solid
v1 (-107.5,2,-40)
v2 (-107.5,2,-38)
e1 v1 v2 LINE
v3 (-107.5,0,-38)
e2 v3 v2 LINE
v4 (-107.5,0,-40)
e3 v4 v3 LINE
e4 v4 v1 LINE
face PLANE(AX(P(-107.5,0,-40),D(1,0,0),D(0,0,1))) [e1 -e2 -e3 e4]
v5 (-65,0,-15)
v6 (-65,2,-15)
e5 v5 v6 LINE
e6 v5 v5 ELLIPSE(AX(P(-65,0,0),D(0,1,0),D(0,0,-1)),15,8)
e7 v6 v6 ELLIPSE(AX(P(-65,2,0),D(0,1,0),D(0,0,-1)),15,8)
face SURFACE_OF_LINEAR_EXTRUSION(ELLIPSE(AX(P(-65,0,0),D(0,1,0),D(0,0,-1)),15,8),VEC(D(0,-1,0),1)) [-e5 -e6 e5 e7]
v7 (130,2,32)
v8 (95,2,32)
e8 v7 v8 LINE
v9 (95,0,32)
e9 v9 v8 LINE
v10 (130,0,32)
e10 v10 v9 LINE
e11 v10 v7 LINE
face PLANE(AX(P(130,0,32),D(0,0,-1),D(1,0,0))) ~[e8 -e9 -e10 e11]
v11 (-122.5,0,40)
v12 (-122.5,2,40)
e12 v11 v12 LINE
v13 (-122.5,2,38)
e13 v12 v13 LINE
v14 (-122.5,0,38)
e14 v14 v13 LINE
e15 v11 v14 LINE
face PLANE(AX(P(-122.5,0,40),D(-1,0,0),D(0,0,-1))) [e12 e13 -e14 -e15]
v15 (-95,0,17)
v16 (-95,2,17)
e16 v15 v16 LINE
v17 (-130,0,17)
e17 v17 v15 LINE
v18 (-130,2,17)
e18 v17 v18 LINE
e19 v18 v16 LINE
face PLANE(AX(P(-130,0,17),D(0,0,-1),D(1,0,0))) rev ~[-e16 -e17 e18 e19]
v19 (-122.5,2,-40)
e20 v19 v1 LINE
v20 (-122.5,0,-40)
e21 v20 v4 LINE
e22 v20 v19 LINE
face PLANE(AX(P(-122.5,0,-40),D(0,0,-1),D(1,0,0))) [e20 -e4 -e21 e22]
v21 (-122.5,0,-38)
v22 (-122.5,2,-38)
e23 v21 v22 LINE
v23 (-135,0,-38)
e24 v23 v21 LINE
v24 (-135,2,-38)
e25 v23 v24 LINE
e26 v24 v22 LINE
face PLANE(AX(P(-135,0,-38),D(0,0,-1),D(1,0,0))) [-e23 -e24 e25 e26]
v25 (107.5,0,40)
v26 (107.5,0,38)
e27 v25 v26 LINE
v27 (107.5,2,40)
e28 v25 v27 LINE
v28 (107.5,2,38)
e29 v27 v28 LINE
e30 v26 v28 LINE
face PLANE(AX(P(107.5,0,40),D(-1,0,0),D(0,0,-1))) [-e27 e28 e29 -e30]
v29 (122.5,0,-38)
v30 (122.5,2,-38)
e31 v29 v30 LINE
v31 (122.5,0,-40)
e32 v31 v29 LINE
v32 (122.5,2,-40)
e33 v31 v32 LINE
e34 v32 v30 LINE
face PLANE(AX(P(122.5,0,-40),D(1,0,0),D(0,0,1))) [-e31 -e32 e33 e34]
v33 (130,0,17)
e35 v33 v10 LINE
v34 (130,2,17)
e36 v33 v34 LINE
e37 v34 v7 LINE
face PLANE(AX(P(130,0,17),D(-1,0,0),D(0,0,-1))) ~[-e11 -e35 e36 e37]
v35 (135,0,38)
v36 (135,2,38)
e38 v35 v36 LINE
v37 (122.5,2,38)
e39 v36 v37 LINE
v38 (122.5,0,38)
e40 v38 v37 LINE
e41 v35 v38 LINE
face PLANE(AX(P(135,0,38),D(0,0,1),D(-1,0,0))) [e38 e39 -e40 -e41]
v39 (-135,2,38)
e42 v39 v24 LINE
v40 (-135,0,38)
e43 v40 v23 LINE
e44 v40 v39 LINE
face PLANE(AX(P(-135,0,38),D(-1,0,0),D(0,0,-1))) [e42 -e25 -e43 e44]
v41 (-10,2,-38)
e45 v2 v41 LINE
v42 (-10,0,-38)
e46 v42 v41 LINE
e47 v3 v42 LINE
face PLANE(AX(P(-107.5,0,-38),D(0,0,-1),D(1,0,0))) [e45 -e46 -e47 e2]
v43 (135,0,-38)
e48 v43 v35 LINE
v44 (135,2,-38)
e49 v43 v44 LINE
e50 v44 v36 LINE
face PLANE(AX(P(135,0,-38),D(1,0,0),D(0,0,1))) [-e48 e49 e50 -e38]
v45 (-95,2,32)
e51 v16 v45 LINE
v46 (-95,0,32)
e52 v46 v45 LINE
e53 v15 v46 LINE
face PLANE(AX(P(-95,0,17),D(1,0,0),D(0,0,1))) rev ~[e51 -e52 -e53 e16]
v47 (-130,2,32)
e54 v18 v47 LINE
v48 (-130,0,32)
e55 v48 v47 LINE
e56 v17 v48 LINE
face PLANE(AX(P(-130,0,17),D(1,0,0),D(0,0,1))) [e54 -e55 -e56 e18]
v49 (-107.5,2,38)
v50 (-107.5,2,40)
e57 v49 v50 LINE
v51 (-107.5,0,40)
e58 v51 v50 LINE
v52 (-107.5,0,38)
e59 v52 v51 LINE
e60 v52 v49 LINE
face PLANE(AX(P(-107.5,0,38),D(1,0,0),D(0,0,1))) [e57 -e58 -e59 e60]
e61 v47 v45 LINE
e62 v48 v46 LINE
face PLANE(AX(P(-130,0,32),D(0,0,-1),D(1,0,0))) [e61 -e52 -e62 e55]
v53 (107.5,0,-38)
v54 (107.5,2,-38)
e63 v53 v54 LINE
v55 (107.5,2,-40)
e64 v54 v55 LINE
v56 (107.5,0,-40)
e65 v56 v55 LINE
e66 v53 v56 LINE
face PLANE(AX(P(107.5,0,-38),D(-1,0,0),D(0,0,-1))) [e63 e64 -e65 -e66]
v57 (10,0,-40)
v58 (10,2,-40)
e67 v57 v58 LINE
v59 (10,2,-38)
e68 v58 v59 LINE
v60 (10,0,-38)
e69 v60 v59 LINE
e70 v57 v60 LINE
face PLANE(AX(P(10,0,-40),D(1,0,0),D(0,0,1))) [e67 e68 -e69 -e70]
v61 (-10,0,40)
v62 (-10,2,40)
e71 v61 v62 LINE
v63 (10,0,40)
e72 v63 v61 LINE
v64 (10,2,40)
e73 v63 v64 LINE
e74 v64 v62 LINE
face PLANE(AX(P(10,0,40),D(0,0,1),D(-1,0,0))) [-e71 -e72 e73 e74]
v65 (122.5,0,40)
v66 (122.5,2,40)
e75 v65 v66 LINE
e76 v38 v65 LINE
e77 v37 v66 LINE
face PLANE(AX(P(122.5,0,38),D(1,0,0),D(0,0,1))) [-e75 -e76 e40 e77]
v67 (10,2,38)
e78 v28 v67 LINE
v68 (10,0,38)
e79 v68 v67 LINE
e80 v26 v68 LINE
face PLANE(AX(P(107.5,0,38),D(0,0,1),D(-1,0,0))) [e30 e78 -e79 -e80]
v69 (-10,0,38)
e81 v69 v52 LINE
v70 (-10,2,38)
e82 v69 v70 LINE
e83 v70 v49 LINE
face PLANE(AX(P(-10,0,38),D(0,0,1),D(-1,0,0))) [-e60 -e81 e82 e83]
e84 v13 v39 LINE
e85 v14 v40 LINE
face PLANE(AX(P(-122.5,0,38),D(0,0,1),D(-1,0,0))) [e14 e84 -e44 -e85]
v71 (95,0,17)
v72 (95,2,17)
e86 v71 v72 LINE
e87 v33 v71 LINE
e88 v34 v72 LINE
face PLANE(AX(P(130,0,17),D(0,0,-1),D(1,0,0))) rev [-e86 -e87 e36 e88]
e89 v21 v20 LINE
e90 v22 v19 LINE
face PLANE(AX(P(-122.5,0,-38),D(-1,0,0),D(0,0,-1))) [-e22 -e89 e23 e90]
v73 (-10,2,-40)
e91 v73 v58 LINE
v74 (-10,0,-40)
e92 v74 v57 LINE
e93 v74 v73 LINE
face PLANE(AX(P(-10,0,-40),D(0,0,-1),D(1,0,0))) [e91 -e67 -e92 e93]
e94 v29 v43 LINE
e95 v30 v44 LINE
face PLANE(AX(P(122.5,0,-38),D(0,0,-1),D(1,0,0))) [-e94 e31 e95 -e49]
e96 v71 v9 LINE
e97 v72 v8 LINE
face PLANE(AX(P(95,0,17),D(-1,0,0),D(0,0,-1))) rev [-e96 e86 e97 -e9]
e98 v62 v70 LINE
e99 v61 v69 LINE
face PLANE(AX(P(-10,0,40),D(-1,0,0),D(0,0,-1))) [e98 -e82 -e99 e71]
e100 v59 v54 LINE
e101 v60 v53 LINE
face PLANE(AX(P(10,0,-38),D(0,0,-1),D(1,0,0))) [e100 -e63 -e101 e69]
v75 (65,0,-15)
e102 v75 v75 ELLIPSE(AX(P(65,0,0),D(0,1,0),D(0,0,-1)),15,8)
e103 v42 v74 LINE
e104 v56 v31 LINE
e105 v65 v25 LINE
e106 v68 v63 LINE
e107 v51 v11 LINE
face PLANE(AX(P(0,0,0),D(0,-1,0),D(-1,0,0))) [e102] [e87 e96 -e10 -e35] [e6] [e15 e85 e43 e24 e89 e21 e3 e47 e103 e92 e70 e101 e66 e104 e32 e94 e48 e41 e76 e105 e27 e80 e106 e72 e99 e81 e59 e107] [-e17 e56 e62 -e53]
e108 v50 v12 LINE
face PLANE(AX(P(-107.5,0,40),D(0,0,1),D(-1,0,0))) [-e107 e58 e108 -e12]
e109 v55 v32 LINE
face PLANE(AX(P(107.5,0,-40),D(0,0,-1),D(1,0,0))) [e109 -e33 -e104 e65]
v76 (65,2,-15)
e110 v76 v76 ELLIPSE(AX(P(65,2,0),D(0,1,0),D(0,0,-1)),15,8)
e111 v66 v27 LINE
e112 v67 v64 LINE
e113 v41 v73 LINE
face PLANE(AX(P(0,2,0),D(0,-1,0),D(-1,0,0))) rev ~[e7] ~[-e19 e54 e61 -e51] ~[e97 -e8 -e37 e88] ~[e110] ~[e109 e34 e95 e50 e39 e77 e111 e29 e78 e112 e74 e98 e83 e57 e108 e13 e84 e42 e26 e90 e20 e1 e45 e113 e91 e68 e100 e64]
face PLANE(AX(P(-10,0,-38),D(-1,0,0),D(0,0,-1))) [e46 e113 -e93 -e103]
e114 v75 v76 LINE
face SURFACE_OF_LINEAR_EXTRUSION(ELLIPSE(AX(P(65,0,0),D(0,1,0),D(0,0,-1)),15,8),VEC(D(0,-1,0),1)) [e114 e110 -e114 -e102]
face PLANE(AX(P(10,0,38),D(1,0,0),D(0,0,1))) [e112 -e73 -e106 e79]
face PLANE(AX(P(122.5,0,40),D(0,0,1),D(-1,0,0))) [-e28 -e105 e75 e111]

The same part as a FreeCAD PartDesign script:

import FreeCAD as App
import Part
import Sketcher
Q = App.Units.Quantity

doc = App.newDocument("Part")
body = doc.addObject("PartDesign::Body", "Body")

# Sketch on XZ plane
sketch1 = body.newObject("Sketcher::SketchObject", "Sketch")
sketch1.AttachmentSupport = (doc.getObject("XZ_Plane"), [""])
sketch1.MapMode = "FlatFace"
sketch1.addGeometry([
    Part.LineSegment(App.Vector(-10, -38, 0), App.Vector(-107.5, -38, 0)),  # 0
    Part.LineSegment(App.Vector(-107.5, -38, 0), App.Vector(-107.5, -40, 0)),  # 1
    Part.LineSegment(App.Vector(-107.5, -40, 0), App.Vector(-122.5, -40, 0)),  # 2
    Part.LineSegment(App.Vector(-122.5, -40, 0), App.Vector(-122.5, -38, 0)),  # 3
    Part.LineSegment(App.Vector(-122.5, -38, 0), App.Vector(-135, -38, 0)),  # 4
    Part.LineSegment(App.Vector(-135, -38, 0), App.Vector(-135, 38, 0)),  # 5
    Part.LineSegment(App.Vector(-135, 38, 0), App.Vector(-122.5, 38, 0)),  # 6
    Part.LineSegment(App.Vector(-122.5, 38, 0), App.Vector(-122.5, 40, 0)),  # 7
    Part.LineSegment(App.Vector(-122.5, 40, 0), App.Vector(-107.5, 40, 0)),  # 8
    Part.LineSegment(App.Vector(-107.5, 40, 0), App.Vector(-107.5, 38, 0)),  # 9
    Part.LineSegment(App.Vector(-107.5, 38, 0), App.Vector(-10, 38, 0)),  # 10
    Part.LineSegment(App.Vector(-10, 38, 0), App.Vector(-10, 40, 0)),  # 11
    Part.LineSegment(App.Vector(-10, 40, 0), App.Vector(10, 40, 0)),  # 12
    Part.LineSegment(App.Vector(10, 40, 0), App.Vector(10, 38, 0)),  # 13
    Part.LineSegment(App.Vector(10, 38, 0), App.Vector(107.5, 38, 0)),  # 14
    Part.LineSegment(App.Vector(107.5, 38, 0), App.Vector(107.5, 40, 0)),  # 15
    Part.LineSegment(App.Vector(107.5, 40, 0), App.Vector(122.5, 40, 0)),  # 16
    Part.LineSegment(App.Vector(122.5, 40, 0), App.Vector(122.5, 38, 0)),  # 17
    Part.LineSegment(App.Vector(122.5, 38, 0), App.Vector(135, 38, 0)),  # 18
    Part.LineSegment(App.Vector(135, 38, 0), App.Vector(135, -38, 0)),  # 19
    Part.LineSegment(App.Vector(135, -38, 0), App.Vector(122.5, -38, 0)),  # 20
    Part.LineSegment(App.Vector(122.5, -38, 0), App.Vector(122.5, -40, 0)),  # 21
    Part.LineSegment(App.Vector(122.5, -40, 0), App.Vector(107.5, -40, 0)),  # 22
    Part.LineSegment(App.Vector(107.5, -40, 0), App.Vector(107.5, -38, 0)),  # 23
    Part.LineSegment(App.Vector(107.5, -38, 0), App.Vector(10, -38, 0)),  # 24
    Part.LineSegment(App.Vector(10, -38, 0), App.Vector(10, -40, 0)),  # 25
    Part.LineSegment(App.Vector(10, -40, 0), App.Vector(-10, -40, 0)),  # 26
    Part.LineSegment(App.Vector(-10, -40, 0), App.Vector(-10, -38, 0)),  # 27
    Part.Ellipse(App.Vector(65, -15, 0), App.Vector(73, 0, 0), App.Vector(65, 0, 0)),  # 28
    Part.Ellipse(App.Vector(-65, -15, 0), App.Vector(-57, 0, 0), App.Vector(-65, 0, 0)),  # 29
], False)
sketch1.addConstraint([
    Sketcher.Constraint("Block", 28),
    Sketcher.Constraint("Block", 29),
    Sketcher.Constraint("Coincident", 0, 2, 1, 1),
    Sketcher.Constraint("Coincident", 1, 2, 2, 1),
    Sketcher.Constraint("Coincident", 2, 2, 3, 1),
    Sketcher.Constraint("Coincident", 3, 2, 4, 1),
    Sketcher.Constraint("Coincident", 4, 2, 5, 1),
    Sketcher.Constraint("Coincident", 5, 2, 6, 1),
    Sketcher.Constraint("Coincident", 6, 2, 7, 1),
    Sketcher.Constraint("Coincident", 7, 2, 8, 1),
    Sketcher.Constraint("Coincident", 8, 2, 9, 1),
    Sketcher.Constraint("Coincident", 9, 2, 10, 1),
    Sketcher.Constraint("Coincident", 10, 2, 11, 1),
    Sketcher.Constraint("Coincident", 11, 2, 12, 1),
    Sketcher.Constraint("Coincident", 12, 2, 13, 1),
    Sketcher.Constraint("Coincident", 13, 2, 14, 1),
    Sketcher.Constraint("Coincident", 14, 2, 15, 1),
    Sketcher.Constraint("Coincident", 15, 2, 16, 1),
    Sketcher.Constraint("Coincident", 16, 2, 17, 1),
    Sketcher.Constraint("Coincident", 17, 2, 18, 1),
    Sketcher.Constraint("Coincident", 18, 2, 19, 1),
    Sketcher.Constraint("Coincident", 19, 2, 20, 1),
    Sketcher.Constraint("Coincident", 20, 2, 21, 1),
    Sketcher.Constraint("Coincident", 21, 2, 22, 1),
    Sketcher.Constraint("Coincident", 22, 2, 23, 1),
    Sketcher.Constraint("Coincident", 23, 2, 24, 1),
    Sketcher.Constraint("Coincident", 24, 2, 25, 1),
    Sketcher.Constraint("Coincident", 25, 2, 26, 1),
    Sketcher.Constraint("Coincident", 26, 2, 27, 1),
    Sketcher.Constraint("Coincident", 27, 2, 0, 1),
    Sketcher.Constraint("Horizontal", 0),
    Sketcher.Constraint("Vertical", 1),
    Sketcher.Constraint("Horizontal", 2),
    Sketcher.Constraint("Vertical", 3),
    Sketcher.Constraint("Horizontal", 4),
    Sketcher.Constraint("Vertical", 5),
    Sketcher.Constraint("Horizontal", 6),
    Sketcher.Constraint("Vertical", 7),
    Sketcher.Constraint("Horizontal", 8),
    Sketcher.Constraint("Vertical", 9),
    Sketcher.Constraint("Horizontal", 10),
    Sketcher.Constraint("Vertical", 11),
    Sketcher.Constraint("Horizontal", 12),
    Sketcher.Constraint("Vertical", 13),
    Sketcher.Constraint("Horizontal", 14),
    Sketcher.Constraint("Vertical", 15),
    Sketcher.Constraint("Horizontal", 16),
    Sketcher.Constraint("Vertical", 17),
    Sketcher.Constraint("Horizontal", 18),
    Sketcher.Constraint("Vertical", 19),
    Sketcher.Constraint("Horizontal", 20),
    Sketcher.Constraint("Vertical", 21),
    Sketcher.Constraint("Horizontal", 22),
    Sketcher.Constraint("Vertical", 23),
    Sketcher.Constraint("Horizontal", 24),
    Sketcher.Constraint("Vertical", 25),
    Sketcher.Constraint("Horizontal", 26),
    Sketcher.Constraint("Vertical", 27),
    Sketcher.Constraint("Symmetric", 0, 2, 14, 2, -1, 1),
    Sketcher.Constraint("Symmetric", 2, 2, 16, 2, -1, 1),
    Sketcher.Constraint("Symmetric", 4, 2, 18, 2, -1, 1),
    Sketcher.Constraint("Symmetric", 6, 2, 20, 2, -1, 1),
    Sketcher.Constraint("Symmetric", 8, 2, 22, 2, -1, 1),
    Sketcher.Constraint("Symmetric", 10, 2, 24, 2, -1, 1),
    Sketcher.Constraint("Symmetric", 12, 2, 26, 2, -1, 1),
    Sketcher.Constraint("Symmetric", 10, 2, 13, 2, -2),
    Sketcher.Constraint("Symmetric", 8, 2, 15, 2, -2),
    Sketcher.Constraint("Symmetric", 6, 2, 17, 2, -2),
    Sketcher.Constraint("Horizontal", 0, 2, 3, 2),
    Sketcher.Constraint("Horizontal", 8, 2, 11, 2),
    Sketcher.Constraint("DistanceX", 2, 2, 2, 1, Q("15 mm")),
    Sketcher.Constraint("DistanceX", 12, 1, 12, 2, Q("20 mm")),
    Sketcher.Constraint("DistanceY", 1, 2, 1, 1, Q("2 mm")),
    Sketcher.Constraint("DistanceY", 5, 1, 5, 2, Q("76 mm")),
    Sketcher.Constraint("DistanceX", 0, 2, 0, 1, Q("97.5 mm")),
    Sketcher.Constraint("DistanceX", 4, 2, 4, 1, Q("12.5 mm")),
])
pad1 = body.newObject("PartDesign::Pad", "Pad")
pad1.Profile = sketch1
pad1.Length = 2
pad1.Reversed = True

# Sketch on XZ plane
sketch2 = body.newObject("Sketcher::SketchObject", "Sketch001")
sketch2.AttachmentSupport = (doc.getObject("XZ_Plane"), [""])
sketch2.MapMode = "FlatFace"
sketch2.addGeometry([
    Part.LineSegment(App.Vector(-130, 32, 0), App.Vector(-130, 17, 0)),
    Part.LineSegment(App.Vector(-130, 17, 0), App.Vector(-95, 17, 0)),
    Part.LineSegment(App.Vector(-95, 17, 0), App.Vector(-95, 32, 0)),
    Part.LineSegment(App.Vector(-95, 32, 0), App.Vector(-130, 32, 0)),
], False)
sketch2.addConstraint([
    Sketcher.Constraint("Coincident", 0, 2, 1, 1),
    Sketcher.Constraint("Coincident", 1, 2, 2, 1),
    Sketcher.Constraint("Coincident", 2, 2, 3, 1),
    Sketcher.Constraint("Coincident", 3, 2, 0, 1),
    Sketcher.Constraint("Vertical", 0),
    Sketcher.Constraint("Horizontal", 1),
    Sketcher.Constraint("Vertical", 2),
    Sketcher.Constraint("Horizontal", 3),
    Sketcher.Constraint("DistanceX", 1, 1, 1, 2, Q("35 mm")),
    Sketcher.Constraint("DistanceY", 0, 2, 0, 1, Q("15 mm")),
    Sketcher.Constraint("DistanceX", 0, 2, -1, 1, Q("130 mm")),
    Sketcher.Constraint("DistanceY", -1, 1, 0, 2, Q("17 mm")),
])
pocket1 = body.newObject("PartDesign::Pocket", "Pocket")
pocket1.Profile = sketch2
pocket1.Type = "ThroughAll"
doc.recompute()

mirrored = body.newObject("PartDesign::Mirrored", "Mirrored")
mirrored.Originals = [pocket1]
mirrored.MirrorPlane = (doc.getObject("YZ_Plane"), [""])
body.Tip = mirrored

doc.recompute()
